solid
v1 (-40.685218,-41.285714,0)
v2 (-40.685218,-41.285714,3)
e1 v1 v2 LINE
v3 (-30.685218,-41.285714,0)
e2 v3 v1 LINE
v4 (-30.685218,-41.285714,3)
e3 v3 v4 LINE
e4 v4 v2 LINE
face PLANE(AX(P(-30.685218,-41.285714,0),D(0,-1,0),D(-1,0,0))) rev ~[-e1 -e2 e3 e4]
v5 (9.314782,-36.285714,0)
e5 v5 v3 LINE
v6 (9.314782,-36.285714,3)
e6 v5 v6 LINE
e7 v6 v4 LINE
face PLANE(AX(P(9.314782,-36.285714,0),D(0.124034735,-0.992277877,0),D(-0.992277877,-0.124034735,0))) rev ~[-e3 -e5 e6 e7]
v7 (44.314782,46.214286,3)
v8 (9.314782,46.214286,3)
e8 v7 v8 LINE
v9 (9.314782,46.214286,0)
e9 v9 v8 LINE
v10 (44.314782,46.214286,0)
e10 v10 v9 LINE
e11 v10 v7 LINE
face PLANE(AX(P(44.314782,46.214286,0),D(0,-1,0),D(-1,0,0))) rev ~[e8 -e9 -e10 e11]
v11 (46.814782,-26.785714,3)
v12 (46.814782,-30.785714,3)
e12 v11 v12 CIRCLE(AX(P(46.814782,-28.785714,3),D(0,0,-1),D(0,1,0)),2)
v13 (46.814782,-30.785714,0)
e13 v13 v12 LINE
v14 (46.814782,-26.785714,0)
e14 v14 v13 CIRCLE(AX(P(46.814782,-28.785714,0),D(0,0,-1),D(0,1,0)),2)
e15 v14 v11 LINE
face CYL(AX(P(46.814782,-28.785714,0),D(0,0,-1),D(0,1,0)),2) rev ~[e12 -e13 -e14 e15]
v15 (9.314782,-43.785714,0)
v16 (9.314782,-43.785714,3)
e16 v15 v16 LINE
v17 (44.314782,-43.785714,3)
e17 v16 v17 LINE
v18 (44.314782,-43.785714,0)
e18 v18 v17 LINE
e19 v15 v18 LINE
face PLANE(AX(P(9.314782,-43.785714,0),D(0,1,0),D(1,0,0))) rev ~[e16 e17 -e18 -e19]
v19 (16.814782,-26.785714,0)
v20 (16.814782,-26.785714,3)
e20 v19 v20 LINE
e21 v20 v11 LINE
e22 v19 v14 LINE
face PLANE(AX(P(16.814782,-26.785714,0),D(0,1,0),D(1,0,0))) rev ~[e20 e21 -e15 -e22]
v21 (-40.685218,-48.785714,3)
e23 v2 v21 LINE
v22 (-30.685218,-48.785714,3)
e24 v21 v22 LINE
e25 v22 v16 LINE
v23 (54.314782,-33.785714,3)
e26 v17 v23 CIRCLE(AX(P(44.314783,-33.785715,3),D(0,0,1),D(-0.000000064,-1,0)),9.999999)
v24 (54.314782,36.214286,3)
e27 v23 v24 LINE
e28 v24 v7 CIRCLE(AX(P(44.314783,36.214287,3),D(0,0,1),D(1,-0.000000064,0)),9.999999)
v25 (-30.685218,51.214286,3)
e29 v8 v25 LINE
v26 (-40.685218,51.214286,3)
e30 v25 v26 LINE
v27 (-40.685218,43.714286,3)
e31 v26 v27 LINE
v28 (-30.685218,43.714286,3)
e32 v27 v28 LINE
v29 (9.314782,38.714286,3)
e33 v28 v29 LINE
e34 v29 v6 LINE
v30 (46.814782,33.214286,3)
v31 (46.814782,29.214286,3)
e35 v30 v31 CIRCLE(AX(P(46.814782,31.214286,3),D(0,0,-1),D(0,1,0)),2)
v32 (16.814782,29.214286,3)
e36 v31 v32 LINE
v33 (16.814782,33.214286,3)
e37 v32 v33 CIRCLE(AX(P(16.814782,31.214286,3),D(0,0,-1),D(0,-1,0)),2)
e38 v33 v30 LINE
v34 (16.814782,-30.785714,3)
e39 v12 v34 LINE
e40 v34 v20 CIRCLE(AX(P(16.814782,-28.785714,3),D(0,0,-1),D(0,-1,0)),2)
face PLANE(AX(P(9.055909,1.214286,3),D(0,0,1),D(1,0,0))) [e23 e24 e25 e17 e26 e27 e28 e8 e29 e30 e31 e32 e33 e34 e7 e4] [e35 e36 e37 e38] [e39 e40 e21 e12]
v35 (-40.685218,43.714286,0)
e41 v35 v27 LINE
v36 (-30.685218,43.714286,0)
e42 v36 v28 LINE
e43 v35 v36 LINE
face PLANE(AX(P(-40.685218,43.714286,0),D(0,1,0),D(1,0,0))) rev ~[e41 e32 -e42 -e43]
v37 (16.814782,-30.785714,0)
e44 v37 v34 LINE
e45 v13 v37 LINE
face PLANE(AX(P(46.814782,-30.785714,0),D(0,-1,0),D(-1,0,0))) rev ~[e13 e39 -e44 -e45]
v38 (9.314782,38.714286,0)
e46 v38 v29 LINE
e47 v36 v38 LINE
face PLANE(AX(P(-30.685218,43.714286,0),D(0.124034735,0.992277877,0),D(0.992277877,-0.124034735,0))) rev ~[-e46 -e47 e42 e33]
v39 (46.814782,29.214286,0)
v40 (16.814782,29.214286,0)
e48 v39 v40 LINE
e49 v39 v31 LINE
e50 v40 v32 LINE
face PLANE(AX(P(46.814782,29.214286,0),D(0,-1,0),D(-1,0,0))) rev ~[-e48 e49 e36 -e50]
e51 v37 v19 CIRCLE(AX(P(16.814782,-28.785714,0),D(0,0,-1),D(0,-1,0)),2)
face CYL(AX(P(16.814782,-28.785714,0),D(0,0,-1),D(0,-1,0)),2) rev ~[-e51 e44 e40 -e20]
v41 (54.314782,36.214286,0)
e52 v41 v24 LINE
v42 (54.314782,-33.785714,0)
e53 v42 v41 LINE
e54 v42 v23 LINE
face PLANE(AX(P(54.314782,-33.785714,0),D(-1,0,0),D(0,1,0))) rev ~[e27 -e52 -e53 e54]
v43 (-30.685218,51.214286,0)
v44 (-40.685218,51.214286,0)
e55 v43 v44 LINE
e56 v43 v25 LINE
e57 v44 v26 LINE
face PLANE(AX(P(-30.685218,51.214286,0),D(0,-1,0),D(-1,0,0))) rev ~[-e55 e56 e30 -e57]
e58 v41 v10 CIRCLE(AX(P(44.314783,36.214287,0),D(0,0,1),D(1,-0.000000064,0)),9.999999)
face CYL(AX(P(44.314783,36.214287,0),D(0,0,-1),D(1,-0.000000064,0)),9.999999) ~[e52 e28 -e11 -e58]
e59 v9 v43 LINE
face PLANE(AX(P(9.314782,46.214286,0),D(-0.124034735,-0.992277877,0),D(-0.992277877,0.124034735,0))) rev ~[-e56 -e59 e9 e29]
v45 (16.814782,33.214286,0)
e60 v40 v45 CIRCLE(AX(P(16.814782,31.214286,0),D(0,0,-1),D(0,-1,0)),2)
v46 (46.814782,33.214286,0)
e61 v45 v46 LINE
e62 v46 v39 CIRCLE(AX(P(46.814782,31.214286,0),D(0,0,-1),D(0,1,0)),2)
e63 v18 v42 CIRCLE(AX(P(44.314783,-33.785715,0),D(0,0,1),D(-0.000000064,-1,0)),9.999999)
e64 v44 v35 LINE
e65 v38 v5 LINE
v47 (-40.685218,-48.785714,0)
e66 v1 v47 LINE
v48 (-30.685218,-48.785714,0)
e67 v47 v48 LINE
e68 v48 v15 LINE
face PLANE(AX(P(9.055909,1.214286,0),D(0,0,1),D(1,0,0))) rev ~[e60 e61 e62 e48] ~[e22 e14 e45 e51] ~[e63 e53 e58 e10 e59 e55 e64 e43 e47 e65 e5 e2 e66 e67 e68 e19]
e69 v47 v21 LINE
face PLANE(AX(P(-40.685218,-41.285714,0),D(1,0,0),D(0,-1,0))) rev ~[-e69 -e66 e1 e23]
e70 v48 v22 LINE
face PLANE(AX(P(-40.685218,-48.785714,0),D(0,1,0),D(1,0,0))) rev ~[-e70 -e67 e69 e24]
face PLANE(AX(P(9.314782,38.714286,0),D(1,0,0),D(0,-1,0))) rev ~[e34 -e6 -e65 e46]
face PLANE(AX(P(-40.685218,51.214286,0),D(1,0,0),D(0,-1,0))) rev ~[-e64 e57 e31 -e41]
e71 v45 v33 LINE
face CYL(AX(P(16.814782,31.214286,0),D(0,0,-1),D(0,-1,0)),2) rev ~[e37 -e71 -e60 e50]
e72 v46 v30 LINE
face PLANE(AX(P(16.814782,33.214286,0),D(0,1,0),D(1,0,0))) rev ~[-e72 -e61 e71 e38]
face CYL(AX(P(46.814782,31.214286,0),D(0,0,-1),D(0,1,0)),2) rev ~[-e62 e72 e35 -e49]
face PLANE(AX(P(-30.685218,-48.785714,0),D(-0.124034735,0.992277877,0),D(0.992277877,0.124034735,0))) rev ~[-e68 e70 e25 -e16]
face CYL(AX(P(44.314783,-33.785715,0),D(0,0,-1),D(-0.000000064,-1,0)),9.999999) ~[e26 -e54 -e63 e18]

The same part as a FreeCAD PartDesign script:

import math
import FreeCAD as App
import Part
import Sketcher
from FreeCAD import Vector
Q = App.Units.Quantity

doc = App.newDocument("Part")
body = doc.addObject("PartDesign::Body", "Body")

sketch1 = body.newObject("Sketcher::SketchObject", "Sketch")
sketch1.AttachmentSupport = (doc.getObject("XY_Plane"), [""])
sketch1.MapMode = "FlatFace"
sketch1.addGeometry([
    Part.ArcOfCircle(Part.Circle(Vector(44.3, 36.2, 0), Vector(0, 0, 1), 10), math.radians(0), math.radians(90)),
    Part.LineSegment(Vector(44.3, 46.2, 0), Vector(9.3, 46.2, 0)),
    Part.LineSegment(Vector(9.3, 46.2, 0), Vector(-30.7, 51.2, 0)),
    Part.LineSegment(Vector(-30.7, 51.2, 0), Vector(-40.7, 51.2, 0)),
    Part.LineSegment(Vector(-40.7, 51.2, 0), Vector(-40.7, 43.7, 0)),
    Part.LineSegment(Vector(-40.7, 43.7, 0), Vector(-30.7, 43.7, 0)),
    Part.LineSegment(Vector(-30.7, 43.7, 0), Vector(9.3, 38.7, 0)),
    Part.LineSegment(Vector(9.3, 38.7, 0), Vector(9.3, -36.3, 0)),
    Part.LineSegment(Vector(9.3, -36.3, 0), Vector(-30.7, -41.3, 0)),
    Part.LineSegment(Vector(-30.7, -41.3, 0), Vector(-40.7, -41.3, 0)),
    Part.LineSegment(Vector(-40.7, -41.3, 0), Vector(-40.7, -48.8, 0)),
    Part.LineSegment(Vector(-40.7, -48.8, 0), Vector(-30.7, -48.8, 0)),
    Part.LineSegment(Vector(-30.7, -48.8, 0), Vector(9.3, -43.8, 0)),
    Part.LineSegment(Vector(9.3, -43.8, 0), Vector(44.3, -43.8, 0)),
    Part.ArcOfCircle(Part.Circle(Vector(44.3, -33.8, 0), Vector(0, 0, 1), 10), math.radians(-90), math.radians(0)),
    Part.LineSegment(Vector(54.3, -33.8, 0), Vector(54.3, 36.2, 0)),
    Part.ArcOfCircle(Part.Circle(Vector(46.8, -28.8, 0), Vector(0, 0, 1), 2), math.radians(-90), math.radians(90)),
    Part.LineSegment(Vector(46.8, -30.8, 0), Vector(16.8, -30.8, 0)),
    Part.ArcOfCircle(Part.Circle(Vector(16.8, -28.8, 0), Vector(0, 0, 1), 2), math.radians(90), math.radians(270)),
    Part.LineSegment(Vector(16.8, -26.8, 0), Vector(46.8, -26.8, 0)),
    Part.LineSegment(Vector(16.8, 33.2, 0), Vector(46.8, 33.2, 0)),
    Part.ArcOfCircle(Part.Circle(Vector(46.8, 31.2, 0), Vector(0, 0, 1), 2), math.radians(-90), math.radians(90)),
    Part.LineSegment(Vector(46.8, 29.2, 0), Vector(16.8, 29.2, 0)),
    Part.ArcOfCircle(Part.Circle(Vector(16.8, 31.2, 0), Vector(0, 0, 1), 2), math.radians(90), math.radians(270)),
], False)
sketch1.addConstraint([
    Sketcher.Constraint("Tangent", 0, 2, 1, 1),
    Sketcher.Constraint("Coincident", 1, 2, 2, 1),
    Sketcher.Constraint("Coincident", 2, 2, 3, 1),
    Sketcher.Constraint("Coincident", 3, 2, 4, 1),
    Sketcher.Constraint("Coincident", 4, 2, 5, 1),
    Sketcher.Constraint("Coincident", 5, 2, 6, 1),
    Sketcher.Constraint("Coincident", 6, 2, 7, 1),
    Sketcher.Constraint("Coincident", 7, 2, 8, 1),
    Sketcher.Constraint("Coincident", 8, 2, 9, 1),
    Sketcher.Constraint("Coincident", 9, 2, 10, 1),
    Sketcher.Constraint("Coincident", 10, 2, 11, 1),
    Sketcher.Constraint("Coincident", 11, 2, 12, 1),
    Sketcher.Constraint("Coincident", 12, 2, 13, 1),
    Sketcher.Constraint("Tangent", 13, 2, 14, 1),
    Sketcher.Constraint("Tangent", 14, 2, 15, 1),
    Sketcher.Constraint("Tangent", 15, 2, 0, 1),
    Sketcher.Constraint("Tangent", 16, 1, 17, 1),
    Sketcher.Constraint("Tangent", 17, 2, 18, 2),
    Sketcher.Constraint("Tangent", 18, 1, 19, 1),
    Sketcher.Constraint("Tangent", 19, 2, 16, 2),
    Sketcher.Constraint("Tangent", 20, 2, 21, 2),
    Sketcher.Constraint("Tangent", 21, 1, 22, 1),
    Sketcher.Constraint("Tangent", 22, 2, 23, 2),
    Sketcher.Constraint("Tangent", 23, 1, 20, 1),
    Sketcher.Constraint("Horizontal", 1),
    Sketcher.Constraint("Horizontal", 3),
    Sketcher.Constraint("Vertical", 4),
    Sketcher.Constraint("Horizontal", 5),
    Sketcher.Constraint("Vertical", 7),
    Sketcher.Constraint("Horizontal", 9),
    Sketcher.Constraint("Vertical", 10),
    Sketcher.Constraint("Horizontal", 11),
    Sketcher.Constraint("Horizontal", 13),
    Sketcher.Constraint("Vertical", 15),
    Sketcher.Constraint("Horizontal", 17),
    Sketcher.Constraint("Horizontal", 19),
    Sketcher.Constraint("Horizontal", 20),
    Sketcher.Constraint("Horizontal", 22),
    Sketcher.Constraint("Equal", 0, 14),
    Sketcher.Constraint("Equal", 18, 21),
    Sketcher.Constraint("Parallel", 2, 6),
    Sketcher.Constraint("Parallel", 8, 12),
    Sketcher.Constraint("Vertical", 16, 3, 21, 3),
    Sketcher.Constraint("Vertical", 18, 3, 23, 3),
    Sketcher.Constraint("Vertical", 2, 2, 5, 2),
    Sketcher.Constraint("Vertical", 1, 2, 6, 2),
    Sketcher.Constraint("Vertical", 5, 2, 8, 2),
    Sketcher.Constraint("Vertical", 4, 2, 9, 2),
    Sketcher.Constraint("Vertical", 8, 2, 11, 2),
    Sketcher.Constraint("Vertical", 7, 2, 12, 2),
    Sketcher.Constraint("Equal", 4, 10),
    Sketcher.Constraint("Equal", 6, 8),
    Sketcher.Constraint("Radius", 0, Q("9.999999 mm")),
    Sketcher.Constraint("Radius", 16, Q("2 mm")),
    Sketcher.Constraint("DistanceX", 1, 2, 1, 1, Q("35 mm")),
    Sketcher.Constraint("DistanceX", 3, 2, 3, 1, Q("10 mm")),
    Sketcher.Constraint("DistanceX", 17, 2, 17, 1, Q("30 mm")),
    Sketcher.Constraint("DistanceY", 7, 2, 7, 1, Q("75 mm")),
    Sketcher.Constraint("DistanceY", 15, 1, 15, 2, Q("70 mm")),
    Sketcher.Constraint("DistanceY", 14, 3, 16, 3, Q("5.000001 mm")),
    Sketcher.Constraint("DistanceY", 21, 3, 0, 3, Q("5.000001 mm")),
    Sketcher.Constraint("DistanceX", 2, 2, 1, 2, Q("40 mm")),
    Sketcher.Constraint("DistanceY", 1, 2, 2, 2, Q("5 mm")),
    Sketcher.Constraint("DistanceX", 14, 3, 16, 3, Q("2.499999 mm")),
    Sketcher.Constraint("DistanceX", -1, 1, 1, 2, Q("9.314782 mm")),
    Sketcher.Constraint("DistanceY", -1, 1, 0, 3, Q("36.214287 mm")),
])
pad1 = body.newObject("PartDesign::Pad", "Pad")
pad1.Profile = sketch1
pad1.Length = 3

doc.recompute()
